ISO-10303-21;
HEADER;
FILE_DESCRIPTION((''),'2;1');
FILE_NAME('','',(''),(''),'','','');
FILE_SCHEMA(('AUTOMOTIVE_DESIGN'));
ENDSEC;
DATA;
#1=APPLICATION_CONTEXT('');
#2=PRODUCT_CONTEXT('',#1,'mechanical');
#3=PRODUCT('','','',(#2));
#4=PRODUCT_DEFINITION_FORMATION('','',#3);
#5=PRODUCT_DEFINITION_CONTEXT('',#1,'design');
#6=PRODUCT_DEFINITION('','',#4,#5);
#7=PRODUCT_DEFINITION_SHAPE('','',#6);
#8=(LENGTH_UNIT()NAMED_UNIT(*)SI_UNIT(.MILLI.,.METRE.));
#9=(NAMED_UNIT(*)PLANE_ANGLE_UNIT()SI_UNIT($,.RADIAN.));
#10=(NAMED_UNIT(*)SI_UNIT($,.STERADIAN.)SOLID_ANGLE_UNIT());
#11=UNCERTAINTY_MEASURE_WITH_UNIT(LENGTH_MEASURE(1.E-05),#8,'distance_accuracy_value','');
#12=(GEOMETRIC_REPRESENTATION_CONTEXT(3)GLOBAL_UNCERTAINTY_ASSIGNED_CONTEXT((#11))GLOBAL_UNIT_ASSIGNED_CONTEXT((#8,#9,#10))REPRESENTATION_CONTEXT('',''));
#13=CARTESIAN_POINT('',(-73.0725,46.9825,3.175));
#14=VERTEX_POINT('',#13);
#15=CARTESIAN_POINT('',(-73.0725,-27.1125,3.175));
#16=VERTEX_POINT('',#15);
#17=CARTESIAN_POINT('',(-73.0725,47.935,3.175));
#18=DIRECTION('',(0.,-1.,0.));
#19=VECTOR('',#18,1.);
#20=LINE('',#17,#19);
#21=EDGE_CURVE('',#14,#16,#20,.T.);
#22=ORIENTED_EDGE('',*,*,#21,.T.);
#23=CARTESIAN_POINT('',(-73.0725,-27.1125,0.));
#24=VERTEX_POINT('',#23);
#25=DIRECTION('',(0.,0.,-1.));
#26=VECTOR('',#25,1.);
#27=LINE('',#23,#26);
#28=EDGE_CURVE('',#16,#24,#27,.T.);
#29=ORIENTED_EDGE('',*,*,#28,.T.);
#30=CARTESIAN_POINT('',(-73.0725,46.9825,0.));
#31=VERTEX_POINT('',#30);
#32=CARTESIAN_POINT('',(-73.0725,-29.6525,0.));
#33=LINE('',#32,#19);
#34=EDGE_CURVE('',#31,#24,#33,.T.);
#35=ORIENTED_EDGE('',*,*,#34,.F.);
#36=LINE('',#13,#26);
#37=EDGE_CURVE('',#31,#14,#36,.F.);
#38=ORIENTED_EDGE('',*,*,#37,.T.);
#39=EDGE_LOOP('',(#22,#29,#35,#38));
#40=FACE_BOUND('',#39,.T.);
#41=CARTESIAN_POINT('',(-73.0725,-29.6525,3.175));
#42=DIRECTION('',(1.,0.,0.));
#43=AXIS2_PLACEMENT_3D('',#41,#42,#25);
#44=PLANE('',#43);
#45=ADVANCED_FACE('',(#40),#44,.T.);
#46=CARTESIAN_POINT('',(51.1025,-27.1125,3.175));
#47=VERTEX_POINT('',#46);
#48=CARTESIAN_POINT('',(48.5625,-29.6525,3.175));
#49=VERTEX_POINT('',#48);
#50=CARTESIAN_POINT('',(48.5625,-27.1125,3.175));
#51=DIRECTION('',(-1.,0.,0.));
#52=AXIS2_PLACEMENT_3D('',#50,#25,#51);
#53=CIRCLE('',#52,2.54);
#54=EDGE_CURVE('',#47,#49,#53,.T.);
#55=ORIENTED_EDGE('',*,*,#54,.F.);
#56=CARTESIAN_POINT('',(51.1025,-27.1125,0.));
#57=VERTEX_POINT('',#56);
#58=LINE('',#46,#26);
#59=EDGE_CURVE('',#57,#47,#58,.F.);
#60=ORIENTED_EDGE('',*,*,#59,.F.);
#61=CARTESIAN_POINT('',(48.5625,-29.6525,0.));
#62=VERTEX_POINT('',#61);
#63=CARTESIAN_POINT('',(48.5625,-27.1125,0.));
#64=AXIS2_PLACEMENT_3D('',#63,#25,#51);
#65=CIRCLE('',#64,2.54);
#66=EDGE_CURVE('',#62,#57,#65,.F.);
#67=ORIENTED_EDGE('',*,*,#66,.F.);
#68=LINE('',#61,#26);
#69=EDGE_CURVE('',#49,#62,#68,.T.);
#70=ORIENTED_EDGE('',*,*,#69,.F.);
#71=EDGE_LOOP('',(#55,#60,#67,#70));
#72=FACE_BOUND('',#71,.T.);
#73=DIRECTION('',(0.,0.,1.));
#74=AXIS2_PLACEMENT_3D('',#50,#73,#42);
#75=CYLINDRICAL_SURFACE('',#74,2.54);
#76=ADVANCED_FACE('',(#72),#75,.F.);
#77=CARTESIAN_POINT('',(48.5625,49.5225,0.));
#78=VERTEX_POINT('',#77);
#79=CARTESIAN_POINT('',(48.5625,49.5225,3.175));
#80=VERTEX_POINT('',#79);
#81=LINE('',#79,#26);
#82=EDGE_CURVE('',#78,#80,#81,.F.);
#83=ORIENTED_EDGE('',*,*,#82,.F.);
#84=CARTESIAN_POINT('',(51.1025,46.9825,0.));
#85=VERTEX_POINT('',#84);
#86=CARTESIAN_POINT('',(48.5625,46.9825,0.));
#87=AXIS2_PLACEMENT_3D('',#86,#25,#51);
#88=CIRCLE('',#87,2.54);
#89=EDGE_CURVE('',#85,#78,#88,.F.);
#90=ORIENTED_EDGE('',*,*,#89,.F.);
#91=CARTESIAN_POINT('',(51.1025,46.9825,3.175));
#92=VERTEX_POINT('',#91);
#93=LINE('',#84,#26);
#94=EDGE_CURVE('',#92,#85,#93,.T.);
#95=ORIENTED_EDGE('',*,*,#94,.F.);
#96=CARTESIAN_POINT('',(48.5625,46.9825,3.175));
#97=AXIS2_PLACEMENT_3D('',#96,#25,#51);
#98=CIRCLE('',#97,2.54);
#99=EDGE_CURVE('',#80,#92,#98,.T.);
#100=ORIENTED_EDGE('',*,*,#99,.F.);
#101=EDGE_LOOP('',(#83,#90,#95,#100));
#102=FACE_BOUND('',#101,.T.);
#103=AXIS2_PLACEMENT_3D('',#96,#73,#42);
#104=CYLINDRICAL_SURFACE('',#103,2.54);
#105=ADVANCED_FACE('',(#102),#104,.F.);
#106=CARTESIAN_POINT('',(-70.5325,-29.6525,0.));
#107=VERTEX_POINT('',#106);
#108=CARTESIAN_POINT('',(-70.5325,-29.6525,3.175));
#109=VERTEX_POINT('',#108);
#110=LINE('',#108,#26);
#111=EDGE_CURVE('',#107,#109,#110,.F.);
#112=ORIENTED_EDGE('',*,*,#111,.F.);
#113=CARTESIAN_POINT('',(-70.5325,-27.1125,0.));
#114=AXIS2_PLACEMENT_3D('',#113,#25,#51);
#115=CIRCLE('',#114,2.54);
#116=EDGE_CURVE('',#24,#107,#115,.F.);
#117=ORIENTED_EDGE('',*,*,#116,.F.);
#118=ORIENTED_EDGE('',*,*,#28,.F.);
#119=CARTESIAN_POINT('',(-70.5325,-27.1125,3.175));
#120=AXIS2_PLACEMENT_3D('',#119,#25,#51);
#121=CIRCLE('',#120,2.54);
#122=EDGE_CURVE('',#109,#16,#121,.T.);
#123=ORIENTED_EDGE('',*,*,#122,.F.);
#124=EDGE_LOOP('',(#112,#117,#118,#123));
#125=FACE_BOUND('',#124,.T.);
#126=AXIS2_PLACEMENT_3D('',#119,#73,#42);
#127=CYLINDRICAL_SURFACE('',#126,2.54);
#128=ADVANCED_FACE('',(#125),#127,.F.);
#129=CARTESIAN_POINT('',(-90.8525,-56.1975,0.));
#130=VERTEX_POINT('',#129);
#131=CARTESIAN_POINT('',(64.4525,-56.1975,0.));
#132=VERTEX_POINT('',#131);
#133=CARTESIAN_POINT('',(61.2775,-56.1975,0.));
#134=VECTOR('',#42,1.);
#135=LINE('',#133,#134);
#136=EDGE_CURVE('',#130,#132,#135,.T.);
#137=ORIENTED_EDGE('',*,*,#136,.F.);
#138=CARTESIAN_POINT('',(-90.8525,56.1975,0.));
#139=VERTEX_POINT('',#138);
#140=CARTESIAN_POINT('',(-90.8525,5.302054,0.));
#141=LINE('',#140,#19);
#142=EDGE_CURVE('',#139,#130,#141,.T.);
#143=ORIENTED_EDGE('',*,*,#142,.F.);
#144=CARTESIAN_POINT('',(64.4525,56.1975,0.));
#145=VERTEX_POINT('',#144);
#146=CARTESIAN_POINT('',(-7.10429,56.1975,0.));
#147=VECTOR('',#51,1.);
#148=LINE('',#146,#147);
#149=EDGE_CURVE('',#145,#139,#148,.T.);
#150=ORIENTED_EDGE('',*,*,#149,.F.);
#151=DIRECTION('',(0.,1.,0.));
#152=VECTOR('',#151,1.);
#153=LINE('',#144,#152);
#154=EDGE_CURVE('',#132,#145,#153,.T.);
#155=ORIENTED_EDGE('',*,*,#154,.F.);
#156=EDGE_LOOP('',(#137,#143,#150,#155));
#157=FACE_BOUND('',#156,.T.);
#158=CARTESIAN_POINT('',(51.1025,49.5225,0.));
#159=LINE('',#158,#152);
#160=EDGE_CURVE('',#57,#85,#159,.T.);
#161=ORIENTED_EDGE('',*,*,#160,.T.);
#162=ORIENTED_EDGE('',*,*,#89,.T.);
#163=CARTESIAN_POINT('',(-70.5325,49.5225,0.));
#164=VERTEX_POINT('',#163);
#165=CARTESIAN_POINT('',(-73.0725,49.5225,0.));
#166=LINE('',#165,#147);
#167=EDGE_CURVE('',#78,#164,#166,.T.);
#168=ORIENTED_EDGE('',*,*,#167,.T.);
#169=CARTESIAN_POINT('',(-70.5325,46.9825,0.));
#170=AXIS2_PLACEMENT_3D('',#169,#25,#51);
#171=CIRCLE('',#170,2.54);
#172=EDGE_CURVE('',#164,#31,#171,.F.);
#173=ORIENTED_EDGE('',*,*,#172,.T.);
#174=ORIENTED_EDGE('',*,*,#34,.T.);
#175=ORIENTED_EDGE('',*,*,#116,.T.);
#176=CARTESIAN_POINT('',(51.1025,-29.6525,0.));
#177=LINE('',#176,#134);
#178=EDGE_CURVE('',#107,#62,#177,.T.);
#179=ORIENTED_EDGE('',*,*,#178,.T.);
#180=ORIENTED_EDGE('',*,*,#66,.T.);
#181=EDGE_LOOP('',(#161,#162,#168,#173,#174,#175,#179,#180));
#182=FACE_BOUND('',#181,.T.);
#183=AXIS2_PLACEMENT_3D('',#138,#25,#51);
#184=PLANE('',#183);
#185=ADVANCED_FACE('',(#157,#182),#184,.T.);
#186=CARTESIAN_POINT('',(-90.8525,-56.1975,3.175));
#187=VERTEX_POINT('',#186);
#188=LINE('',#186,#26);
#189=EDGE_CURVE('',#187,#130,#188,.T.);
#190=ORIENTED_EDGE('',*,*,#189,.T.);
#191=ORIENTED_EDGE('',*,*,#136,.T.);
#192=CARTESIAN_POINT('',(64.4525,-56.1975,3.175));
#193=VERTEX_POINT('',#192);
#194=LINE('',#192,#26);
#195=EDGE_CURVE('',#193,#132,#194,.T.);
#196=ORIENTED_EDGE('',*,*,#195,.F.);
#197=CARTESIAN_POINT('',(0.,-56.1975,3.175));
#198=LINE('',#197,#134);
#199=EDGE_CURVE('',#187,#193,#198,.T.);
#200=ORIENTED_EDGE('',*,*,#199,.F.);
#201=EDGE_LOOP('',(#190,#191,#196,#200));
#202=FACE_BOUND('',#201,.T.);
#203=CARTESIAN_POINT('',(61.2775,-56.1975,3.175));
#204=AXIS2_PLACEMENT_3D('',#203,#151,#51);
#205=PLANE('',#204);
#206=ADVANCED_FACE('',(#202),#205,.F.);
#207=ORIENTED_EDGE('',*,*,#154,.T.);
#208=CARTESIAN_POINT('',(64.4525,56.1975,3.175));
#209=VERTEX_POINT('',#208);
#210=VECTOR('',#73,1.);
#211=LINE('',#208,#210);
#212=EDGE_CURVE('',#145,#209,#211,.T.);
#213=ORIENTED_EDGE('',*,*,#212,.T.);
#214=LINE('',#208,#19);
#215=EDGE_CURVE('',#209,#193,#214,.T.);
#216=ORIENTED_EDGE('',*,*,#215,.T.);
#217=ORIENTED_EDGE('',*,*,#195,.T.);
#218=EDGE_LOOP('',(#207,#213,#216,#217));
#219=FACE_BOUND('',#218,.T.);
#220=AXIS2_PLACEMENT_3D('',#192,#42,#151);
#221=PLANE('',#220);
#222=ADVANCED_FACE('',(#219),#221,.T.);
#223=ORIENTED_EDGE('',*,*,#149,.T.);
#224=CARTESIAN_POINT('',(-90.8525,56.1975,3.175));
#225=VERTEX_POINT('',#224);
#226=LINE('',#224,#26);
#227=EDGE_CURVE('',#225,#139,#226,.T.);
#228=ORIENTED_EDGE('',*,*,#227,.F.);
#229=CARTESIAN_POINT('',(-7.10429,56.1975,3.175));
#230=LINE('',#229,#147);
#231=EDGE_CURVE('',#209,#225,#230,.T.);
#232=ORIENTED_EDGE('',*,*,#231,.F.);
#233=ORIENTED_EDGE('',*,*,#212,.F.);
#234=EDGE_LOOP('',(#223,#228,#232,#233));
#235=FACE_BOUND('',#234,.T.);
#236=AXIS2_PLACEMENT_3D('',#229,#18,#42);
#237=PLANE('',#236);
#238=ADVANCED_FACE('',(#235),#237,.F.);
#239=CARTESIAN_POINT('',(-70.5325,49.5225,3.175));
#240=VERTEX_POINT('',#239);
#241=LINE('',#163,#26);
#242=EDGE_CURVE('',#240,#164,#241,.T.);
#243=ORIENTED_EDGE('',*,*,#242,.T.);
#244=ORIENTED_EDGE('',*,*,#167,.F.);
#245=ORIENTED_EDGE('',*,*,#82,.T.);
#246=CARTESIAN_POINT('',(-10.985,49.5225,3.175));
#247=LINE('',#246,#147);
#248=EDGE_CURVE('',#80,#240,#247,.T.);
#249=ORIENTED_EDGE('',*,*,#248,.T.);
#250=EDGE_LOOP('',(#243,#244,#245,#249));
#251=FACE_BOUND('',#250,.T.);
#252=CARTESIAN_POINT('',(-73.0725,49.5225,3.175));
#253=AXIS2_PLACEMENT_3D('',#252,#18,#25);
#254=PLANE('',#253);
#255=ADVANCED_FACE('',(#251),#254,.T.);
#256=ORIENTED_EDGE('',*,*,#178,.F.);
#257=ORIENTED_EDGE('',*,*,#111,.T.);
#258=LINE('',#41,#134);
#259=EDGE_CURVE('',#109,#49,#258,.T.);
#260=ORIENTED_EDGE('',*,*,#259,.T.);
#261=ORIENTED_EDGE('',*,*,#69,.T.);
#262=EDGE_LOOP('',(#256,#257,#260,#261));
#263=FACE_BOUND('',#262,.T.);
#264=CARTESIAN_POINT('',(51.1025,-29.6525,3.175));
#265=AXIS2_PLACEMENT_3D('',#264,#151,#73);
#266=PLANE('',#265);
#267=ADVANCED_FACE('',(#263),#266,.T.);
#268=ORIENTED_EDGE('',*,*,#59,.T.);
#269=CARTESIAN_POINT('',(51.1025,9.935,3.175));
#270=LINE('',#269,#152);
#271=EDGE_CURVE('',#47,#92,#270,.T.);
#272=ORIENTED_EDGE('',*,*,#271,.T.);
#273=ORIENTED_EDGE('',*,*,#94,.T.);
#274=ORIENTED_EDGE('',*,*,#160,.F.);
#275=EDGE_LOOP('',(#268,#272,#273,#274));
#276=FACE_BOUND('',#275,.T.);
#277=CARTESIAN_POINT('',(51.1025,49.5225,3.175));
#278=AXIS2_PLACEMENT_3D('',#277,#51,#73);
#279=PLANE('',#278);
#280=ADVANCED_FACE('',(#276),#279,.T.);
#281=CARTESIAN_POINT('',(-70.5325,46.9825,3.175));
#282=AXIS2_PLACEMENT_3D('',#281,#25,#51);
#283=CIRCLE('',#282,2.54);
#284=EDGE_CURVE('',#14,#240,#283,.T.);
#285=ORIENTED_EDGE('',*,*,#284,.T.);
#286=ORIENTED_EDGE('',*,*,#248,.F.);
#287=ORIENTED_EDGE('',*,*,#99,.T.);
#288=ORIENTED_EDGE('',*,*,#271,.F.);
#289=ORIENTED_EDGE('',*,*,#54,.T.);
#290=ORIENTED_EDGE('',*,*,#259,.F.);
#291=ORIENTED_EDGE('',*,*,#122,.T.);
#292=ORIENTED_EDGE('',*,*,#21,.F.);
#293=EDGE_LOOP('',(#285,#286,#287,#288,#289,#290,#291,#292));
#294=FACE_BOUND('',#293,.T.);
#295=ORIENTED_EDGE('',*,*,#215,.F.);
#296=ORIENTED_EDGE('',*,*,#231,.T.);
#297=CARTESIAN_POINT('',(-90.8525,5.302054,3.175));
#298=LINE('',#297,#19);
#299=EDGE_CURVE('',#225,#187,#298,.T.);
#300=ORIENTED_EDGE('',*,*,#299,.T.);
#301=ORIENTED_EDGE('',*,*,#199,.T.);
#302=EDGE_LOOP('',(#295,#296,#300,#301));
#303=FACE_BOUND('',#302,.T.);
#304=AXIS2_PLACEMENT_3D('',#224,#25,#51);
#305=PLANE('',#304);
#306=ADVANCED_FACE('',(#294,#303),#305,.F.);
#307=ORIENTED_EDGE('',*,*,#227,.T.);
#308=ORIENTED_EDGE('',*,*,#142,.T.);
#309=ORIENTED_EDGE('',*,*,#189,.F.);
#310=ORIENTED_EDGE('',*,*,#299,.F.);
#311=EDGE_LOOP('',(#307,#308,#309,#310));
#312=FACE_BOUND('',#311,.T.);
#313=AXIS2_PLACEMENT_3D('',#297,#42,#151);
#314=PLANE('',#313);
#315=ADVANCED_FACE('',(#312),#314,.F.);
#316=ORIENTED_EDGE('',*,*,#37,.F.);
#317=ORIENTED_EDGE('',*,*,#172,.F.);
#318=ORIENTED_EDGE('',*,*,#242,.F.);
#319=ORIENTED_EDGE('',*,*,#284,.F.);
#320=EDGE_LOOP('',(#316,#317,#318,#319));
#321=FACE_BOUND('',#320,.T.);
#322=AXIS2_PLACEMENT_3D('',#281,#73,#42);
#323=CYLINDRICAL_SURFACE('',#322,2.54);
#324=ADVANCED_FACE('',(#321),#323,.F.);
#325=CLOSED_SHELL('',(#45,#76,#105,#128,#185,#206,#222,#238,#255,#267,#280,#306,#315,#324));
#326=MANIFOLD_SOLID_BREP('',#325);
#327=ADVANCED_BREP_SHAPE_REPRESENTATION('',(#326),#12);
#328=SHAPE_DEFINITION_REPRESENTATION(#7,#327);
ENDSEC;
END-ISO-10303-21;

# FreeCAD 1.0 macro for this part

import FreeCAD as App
import Part
import Sketcher
from FreeCAD import Vector
Q = App.Units.Quantity


def edges_at(feature, points):
    """Names of the edges that pass closest to the given points."""
    edges = feature.Shape.Edges
    near = lambda p: min(range(len(edges)), key=lambda i: edges[i].distToShape(Part.Vertex(*p))[0])
    return sorted({f"Edge{near(p) + 1}" for p in points})

doc = App.newDocument("Part")
params = doc.addObject("Spreadsheet::Sheet", "Params")
for row, (alias, value) in enumerate([
    ("sketch1_height", "4.425 in"),
    ("pad1_length", "0.125 in"),
    ("sketch2_width", "4.425 in"),
    ("sketch2_height", "0.125 in"),
    ("pad2_length", "0.125 in"),
    ("fillet_radius", "0.1 in"),
], start=1):
    params.set(f"A{row}", alias)
    params.set(f"B{row}", "=" + value)
    params.setAlias(f"B{row}", alias)

body = doc.addObject("PartDesign::Body", "Body")

# Sketch on XY plane
sketch1 = doc.addObject("Sketcher::SketchObject", "Sketch")
body.addObject(sketch1)
sketch1.AttachmentSupport = (doc.XY_Plane, [""])
sketch1.MapMode = "FlatFace"
sketch1.addGeometry(Part.LineSegment(Vector(61, -56, 0), Vector(61, 56, 0)), False)
sketch1.addGeometry(Part.LineSegment(Vector(61, 56, 0), Vector(-91, 56, 0)), False)
sketch1.addGeometry(Part.LineSegment(Vector(-91, 56, 0), Vector(-91, -56, 0)), False)
sketch1.addGeometry(Part.LineSegment(Vector(-91, -56, 0), Vector(61, -56, 0)), False)
sketch1.addGeometry(Part.LineSegment(Vector(-73, -30, 0), Vector(-73, 50, 0)), False)
sketch1.addGeometry(Part.LineSegment(Vector(-73, 50, 0), Vector(51, 50, 0)), False)
sketch1.addGeometry(Part.LineSegment(Vector(51, 50, 0), Vector(51, -30, 0)), False)
sketch1.addGeometry(Part.LineSegment(Vector(51, -30, 0), Vector(-73, -30, 0)), False)
sketch1.addConstraint(Sketcher.Constraint("Coincident", 0, 2, 1, 1))
sketch1.addConstraint(Sketcher.Constraint("Coincident", 1, 2, 2, 1))
sketch1.addConstraint(Sketcher.Constraint("Coincident", 2, 2, 3, 1))
sketch1.addConstraint(Sketcher.Constraint("Coincident", 3, 2, 0, 1))
sketch1.addConstraint(Sketcher.Constraint("Coincident", 4, 2, 5, 1))
sketch1.addConstraint(Sketcher.Constraint("Coincident", 5, 2, 6, 1))
sketch1.addConstraint(Sketcher.Constraint("Coincident", 6, 2, 7, 1))
sketch1.addConstraint(Sketcher.Constraint("Coincident", 7, 2, 4, 1))
sketch1.addConstraint(Sketcher.Constraint("Vertical", 0))
sketch1.addConstraint(Sketcher.Constraint("Horizontal", 1))
sketch1.addConstraint(Sketcher.Constraint("Vertical", 2))
sketch1.addConstraint(Sketcher.Constraint("Horizontal", 3))
sketch1.addConstraint(Sketcher.Constraint("Vertical", 4))
sketch1.addConstraint(Sketcher.Constraint("Horizontal", 5))
sketch1.addConstraint(Sketcher.Constraint("Vertical", 6))
sketch1.addConstraint(Sketcher.Constraint("Horizontal", 7))
sketch1.addConstraint(Sketcher.Constraint("DistanceX", 1, 2, 4, 2, Q("0.7 in")))
sketch1.addConstraint(Sketcher.Constraint("DistanceY", 0, 1, 0, 2, Q("4.425 in")))
sketch1.addConstraint(Sketcher.Constraint("DistanceX", 1, 2, 1, 1, Q("152.13 mm")))
sketch1.addConstraint(Sketcher.Constraint("DistanceX", 5, 1, 5, 2, Q("124.175 mm")))
sketch1.addConstraint(Sketcher.Constraint("DistanceY", 4, 1, 4, 2, Q("79.175 mm")))
sketch1.addConstraint(Sketcher.Constraint("DistanceX", -1, 1, 0, 2, Q("2.4125 in")))
sketch1.addConstraint(Sketcher.Constraint("DistanceY", -1, 1, 0, 2, Q("2.2125 in")))
sketch1.addConstraint(Sketcher.Constraint("DistanceY", -1, 1, 4, 2, Q("49.5225 mm")))
sketch1.setExpression("Constraints[17]", "Params.sketch1_height")
pad1 = doc.addObject("PartDesign::Pad", "Pad")
body.addObject(pad1)
pad1.Profile = sketch1
pad1.setExpression("Length", "Params.pad1_length")

# Sketch on YZ plane
sketch2 = doc.addObject("Sketcher::SketchObject", "Sketch001")
body.addObject(sketch2)
sketch2.AttachmentSupport = (doc.YZ_Plane, [""])
sketch2.MapMode = "FlatFace"
sketch2.AttachmentOffset = App.Placement(Vector(0, 0, 2.4125 * 25.4), App.Rotation())
sketch2.addGeometry(Part.LineSegment(Vector(56.2, 3.2, 0), Vector(-56.2, 3.2, 0)), False)
sketch2.addGeometry(Part.LineSegment(Vector(-56.2, 3.2, 0), Vector(-56.2, 0, 0)), False)
sketch2.addGeometry(Part.LineSegment(Vector(-56.2, 0, 0), Vector(56.2, 0, 0)), False)
sketch2.addGeometry(Part.LineSegment(Vector(56.2, 0, 0), Vector(56.2, 3.2, 0)), False)
sketch2.addConstraint(Sketcher.Constraint("Coincident", 0, 2, 1, 1))
sketch2.addConstraint(Sketcher.Constraint("Coincident", 1, 2, 2, 1))
sketch2.addConstraint(Sketcher.Constraint("Coincident", 2, 2, 3, 1))
sketch2.addConstraint(Sketcher.Constraint("Coincident", 3, 2, 0, 1))
sketch2.addConstraint(Sketcher.Constraint("Horizontal", 0))
sketch2.addConstraint(Sketcher.Constraint("Vertical", 1))
sketch2.addConstraint(Sketcher.Constraint("Horizontal", 2))
sketch2.addConstraint(Sketcher.Constraint("Vertical", 3))
sketch2.addConstraint(Sketcher.Constraint("Symmetric", 1, 2, 2, 2, -1, 1))
sketch2.addConstraint(Sketcher.Constraint("DistanceX", 0, 2, 0, 1, Q("4.425 in")))
sketch2.addConstraint(Sketcher.Constraint("DistanceY", 1, 2, 1, 1, Q("0.125 in")))
sketch2.setExpression("Constraints[9]", "Params.sketch2_width")
sketch2.setExpression("Constraints[10]", "Params.sketch2_height")
pad2 = doc.addObject("PartDesign::Pad", "Pad001")
body.addObject(pad2)
pad2.Profile = sketch2
pad2.setExpression("Length", "Params.pad2_length")
doc.recompute()

fillet = doc.addObject("PartDesign::Fillet", "Fillet")
body.addObject(fillet)
fillet.Base = (pad2, edges_at(pad2, [
    (51.102, -29.652, 1.587),
    (51.102, 49.523, 1.587),
    (-73.073, 49.523, 1.587),
    (-73.073, -29.652, 1.587),
]))
fillet.setExpression("Radius", "Params.fillet_radius")

doc.recompute()
